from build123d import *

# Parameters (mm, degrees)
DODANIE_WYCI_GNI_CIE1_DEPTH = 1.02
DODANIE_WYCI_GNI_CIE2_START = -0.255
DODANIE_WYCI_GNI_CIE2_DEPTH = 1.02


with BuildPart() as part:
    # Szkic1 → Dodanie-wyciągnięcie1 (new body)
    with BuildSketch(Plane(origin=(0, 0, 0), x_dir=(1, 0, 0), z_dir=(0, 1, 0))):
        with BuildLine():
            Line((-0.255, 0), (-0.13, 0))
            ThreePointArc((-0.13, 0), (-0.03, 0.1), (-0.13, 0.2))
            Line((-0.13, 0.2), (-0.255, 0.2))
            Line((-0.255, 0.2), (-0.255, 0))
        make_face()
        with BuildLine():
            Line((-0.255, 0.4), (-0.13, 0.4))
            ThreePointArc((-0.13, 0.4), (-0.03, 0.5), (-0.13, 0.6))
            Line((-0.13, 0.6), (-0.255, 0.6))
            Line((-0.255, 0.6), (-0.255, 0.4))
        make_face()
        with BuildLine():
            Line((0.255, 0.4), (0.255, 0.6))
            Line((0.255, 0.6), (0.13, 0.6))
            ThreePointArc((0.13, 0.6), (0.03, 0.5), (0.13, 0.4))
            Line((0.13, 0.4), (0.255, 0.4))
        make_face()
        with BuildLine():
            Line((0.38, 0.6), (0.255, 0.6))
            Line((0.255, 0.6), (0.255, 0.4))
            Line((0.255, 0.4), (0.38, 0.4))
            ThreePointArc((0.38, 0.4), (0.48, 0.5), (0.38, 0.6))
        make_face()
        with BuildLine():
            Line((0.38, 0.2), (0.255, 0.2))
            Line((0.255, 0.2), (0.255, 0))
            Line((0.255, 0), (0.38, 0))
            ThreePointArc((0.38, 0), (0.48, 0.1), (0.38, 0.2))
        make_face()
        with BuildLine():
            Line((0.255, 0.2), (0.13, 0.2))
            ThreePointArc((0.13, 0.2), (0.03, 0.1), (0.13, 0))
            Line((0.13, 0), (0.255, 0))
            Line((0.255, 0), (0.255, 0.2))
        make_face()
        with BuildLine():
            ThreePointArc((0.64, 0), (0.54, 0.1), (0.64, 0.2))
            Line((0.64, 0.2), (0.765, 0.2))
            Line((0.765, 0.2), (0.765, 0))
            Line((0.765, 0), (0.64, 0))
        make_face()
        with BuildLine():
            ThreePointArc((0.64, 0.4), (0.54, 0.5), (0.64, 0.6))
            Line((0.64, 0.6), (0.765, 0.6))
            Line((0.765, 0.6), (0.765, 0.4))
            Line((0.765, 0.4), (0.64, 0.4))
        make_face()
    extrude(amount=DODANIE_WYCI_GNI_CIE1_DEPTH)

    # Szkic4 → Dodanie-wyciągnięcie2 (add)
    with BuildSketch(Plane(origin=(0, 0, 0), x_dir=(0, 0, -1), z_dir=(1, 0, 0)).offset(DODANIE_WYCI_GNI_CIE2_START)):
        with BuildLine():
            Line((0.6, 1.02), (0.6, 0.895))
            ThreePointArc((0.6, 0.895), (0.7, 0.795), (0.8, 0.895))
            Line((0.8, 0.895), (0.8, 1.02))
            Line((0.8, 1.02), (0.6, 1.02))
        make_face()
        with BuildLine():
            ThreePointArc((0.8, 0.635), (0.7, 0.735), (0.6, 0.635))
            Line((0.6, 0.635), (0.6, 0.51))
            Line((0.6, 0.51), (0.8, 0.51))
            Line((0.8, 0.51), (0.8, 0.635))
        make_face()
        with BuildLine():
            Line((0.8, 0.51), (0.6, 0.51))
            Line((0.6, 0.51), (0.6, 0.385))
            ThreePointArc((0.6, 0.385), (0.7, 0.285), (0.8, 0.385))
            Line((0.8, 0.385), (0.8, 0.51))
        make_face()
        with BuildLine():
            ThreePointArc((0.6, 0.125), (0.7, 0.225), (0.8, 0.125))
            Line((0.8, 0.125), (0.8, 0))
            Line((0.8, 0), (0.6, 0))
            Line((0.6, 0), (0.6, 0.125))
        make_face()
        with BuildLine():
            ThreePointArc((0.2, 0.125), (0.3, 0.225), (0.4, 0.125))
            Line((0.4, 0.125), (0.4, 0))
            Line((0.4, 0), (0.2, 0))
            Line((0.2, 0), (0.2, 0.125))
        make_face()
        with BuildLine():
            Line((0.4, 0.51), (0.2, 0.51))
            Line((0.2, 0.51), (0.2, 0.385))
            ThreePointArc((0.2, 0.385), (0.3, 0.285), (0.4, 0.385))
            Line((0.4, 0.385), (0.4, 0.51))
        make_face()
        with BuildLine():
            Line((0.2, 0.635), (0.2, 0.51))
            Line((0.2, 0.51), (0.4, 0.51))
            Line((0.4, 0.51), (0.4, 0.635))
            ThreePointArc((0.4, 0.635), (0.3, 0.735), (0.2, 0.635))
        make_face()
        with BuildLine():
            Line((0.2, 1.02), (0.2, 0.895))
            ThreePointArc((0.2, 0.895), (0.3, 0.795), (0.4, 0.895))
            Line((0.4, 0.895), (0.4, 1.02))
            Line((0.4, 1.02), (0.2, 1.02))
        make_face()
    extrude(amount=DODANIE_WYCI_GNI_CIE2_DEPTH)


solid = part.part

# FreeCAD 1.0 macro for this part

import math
import FreeCAD as App
import Part
import Sketcher

V = App.Vector

doc = App.newDocument("Part")
body = doc.addObject("PartDesign::Body", "Body")
body.AllowCompound = True

sketch1 = body.newObject("Sketcher::SketchObject", "Sketch")
sketch1.AttachmentSupport = (doc.getObject("XZ_Plane"), [""])
sketch1.MapMode = "FlatFace"
sketch1.addGeometry([
    Part.LineSegment(V(-0.26, 0, 0), V(-0.13, 0, 0)),
    Part.ArcOfCircle(Part.Circle(V(-0.13, -0.1, 0), V(0, 0, 1), 0.1), math.radians(-90), math.radians(90)),
    Part.LineSegment(V(-0.13, -0.2, 0), V(-0.26, -0.2, 0)),
    Part.LineSegment(V(-0.26, -0.2, 0), V(-0.26, 0, 0)),
    Part.LineSegment(V(-0.26, -0.4, 0), V(-0.13, -0.4, 0)),
    Part.ArcOfCircle(Part.Circle(V(-0.13, -0.5, 0), V(0, 0, 1), 0.1), math.radians(-90), math.radians(90)),
    Part.LineSegment(V(-0.13, -0.6, 0), V(-0.26, -0.6, 0)),
    Part.LineSegment(V(-0.26, -0.6, 0), V(-0.26, -0.4, 0)),
    Part.ArcOfCircle(Part.Circle(V(0.13, -0.5, 0), V(0, 0, 1), 0.1), math.radians(90), math.radians(270)),
    Part.LineSegment(V(0.13, -0.4, 0), V(0.38, -0.4, 0)),
    Part.ArcOfCircle(Part.Circle(V(0.38, -0.5, 0), V(0, 0, 1), 0.1), math.radians(-90), math.radians(90)),
    Part.LineSegment(V(0.38, -0.6, 0), V(0.13, -0.6, 0)),
    Part.LineSegment(V(0.38, -0.2, 0), V(0.13, -0.2, 0)),
    Part.ArcOfCircle(Part.Circle(V(0.13, -0.1, 0), V(0, 0, 1), 0.1), math.radians(90), math.radians(270)),
    Part.LineSegment(V(0.13, 0, 0), V(0.38, 0, 0)),
    Part.ArcOfCircle(Part.Circle(V(0.38, -0.1, 0), V(0, 0, 1), 0.1), math.radians(-90), math.radians(90)),
    Part.ArcOfCircle(Part.Circle(V(0.64, -0.1, 0), V(0, 0, 1), 0.1), math.radians(90), math.radians(270)),
    Part.LineSegment(V(0.64, 0, 0), V(0.77, 0, 0)),
    Part.LineSegment(V(0.77, 0, 0), V(0.77, -0.2, 0)),
    Part.LineSegment(V(0.77, -0.2, 0), V(0.64, -0.2, 0)),
    Part.ArcOfCircle(Part.Circle(V(0.64, -0.5, 0), V(0, 0, 1), 0.1), math.radians(90), math.radians(270)),
    Part.LineSegment(V(0.64, -0.4, 0), V(0.77, -0.4, 0)),
    Part.LineSegment(V(0.77, -0.4, 0), V(0.77, -0.6, 0)),
    Part.LineSegment(V(0.77, -0.6, 0), V(0.64, -0.6, 0)),
], False)
sketch1.addConstraint([
    Sketcher.Constraint("Tangent", 0, 2, 1, 2),
    Sketcher.Constraint("Tangent", 1, 1, 2, 1),
    Sketcher.Constraint("Coincident", 2, 2, 3, 1),
    Sketcher.Constraint("Coincident", 3, 2, 0, 1),
    Sketcher.Constraint("Tangent", 4, 2, 5, 2),
    Sketcher.Constraint("Tangent", 5, 1, 6, 1),
    Sketcher.Constraint("Coincident", 6, 2, 7, 1),
    Sketcher.Constraint("Coincident", 7, 2, 4, 1),
    Sketcher.Constraint("Tangent", 8, 1, 9, 1),
    Sketcher.Constraint("Tangent", 9, 2, 10, 2),
    Sketcher.Constraint("Tangent", 10, 1, 11, 1),
    Sketcher.Constraint("Tangent", 11, 2, 8, 2),
    Sketcher.Constraint("Tangent", 12, 2, 13, 2),
    Sketcher.Constraint("Tangent", 13, 1, 14, 1),
    Sketcher.Constraint("Tangent", 14, 2, 15, 2),
    Sketcher.Constraint("Tangent", 15, 1, 12, 1),
    Sketcher.Constraint("Tangent", 16, 1, 17, 1),
    Sketcher.Constraint("Coincident", 17, 2, 18, 1),
    Sketcher.Constraint("Coincident", 18, 2, 19, 1),
    Sketcher.Constraint("Tangent", 19, 2, 16, 2),
    Sketcher.Constraint("Tangent", 20, 1, 21, 1),
    Sketcher.Constraint("Coincident", 21, 2, 22, 1),
    Sketcher.Constraint("Coincident", 22, 2, 23, 1),
    Sketcher.Constraint("Tangent", 23, 2, 20, 2),
    Sketcher.Constraint("Horizontal", 0),
    Sketcher.Constraint("Horizontal", 2),
    Sketcher.Constraint("Vertical", 3),
    Sketcher.Constraint("Horizontal", 4),
    Sketcher.Constraint("Horizontal", 6),
    Sketcher.Constraint("Vertical", 7),
    Sketcher.Constraint("Horizontal", 9),
    Sketcher.Constraint("Horizontal", 11),
    Sketcher.Constraint("Horizontal", 12),
    Sketcher.Constraint("Horizontal", 14),
    Sketcher.Constraint("Horizontal", 17),
    Sketcher.Constraint("Vertical", 18),
    Sketcher.Constraint("Horizontal", 19),
    Sketcher.Constraint("Horizontal", 21),
    Sketcher.Constraint("Vertical", 22),
    Sketcher.Constraint("Horizontal", 23),
    Sketcher.Constraint("Equal", 1, 5),
    Sketcher.Constraint("Equal", 5, 8),
    Sketcher.Constraint("Equal", 10, 13),
    Sketcher.Constraint("Equal", 15, 16),
    Sketcher.Constraint("Equal", 16, 20),
    Sketcher.Constraint("Symmetric", 0, 2, 13, 1, -1, 1),
    Sketcher.Constraint("Symmetric", 5, 3, 8, 3, -2),
    Sketcher.Constraint("PointOnObject", 0, 2, -1),
    Sketcher.Constraint("PointOnObject", 16, 1, -1),
    Sketcher.Constraint("Horizontal", 10, 3, 20, 3),
    Sketcher.Constraint("Vertical", 1, 3, 5, 3),
    Sketcher.Constraint("Vertical", 10, 3, 15, 3),
    Sketcher.Constraint("Vertical", 16, 3, 20, 3),
    Sketcher.Constraint("Vertical", 3, 2, 6, 2),
    Sketcher.Constraint("Vertical", 18, 2, 21, 2),
    Sketcher.Constraint("Equal", 6, 17),
    Sketcher.Constraint("Radius", 1, 0.1),
    Sketcher.Constraint("DistanceX", 9, 1, 9, 2, 0.25),
    Sketcher.Constraint("DistanceY", 5, 3, -1, 1, 0.5),
    Sketcher.Constraint("DistanceX", 0, 1, 0, 2, 0.125),
    Sketcher.Constraint("DistanceX", 1, 3, -1, 1, 0.13),
    Sketcher.Constraint("DistanceX", -1, 1, 16, 3, 0.64),
])
pad1 = body.newObject("PartDesign::Pad", "Pad")
pad1.Profile = sketch1
pad1.Length = 1.02
pad1.Reversed = True

sketch2 = body.newObject("Sketcher::SketchObject", "Sketch001")
sketch2.AttachmentSupport = (doc.getObject("YZ_Plane"), [""])
sketch2.MapMode = "FlatFace"
sketch2.AttachmentOffset = App.Placement(V(0, 0, -0.255), App.Rotation())
sketch2.addGeometry([
    Part.LineSegment(V(1.02, -0.6, 0), V(0.9, -0.6, 0)),
    Part.ArcOfCircle(Part.Circle(V(0.9, -0.7, 0), V(0, 0, 1), 0.1), math.radians(90), math.radians(270)),
    Part.LineSegment(V(0.9, -0.8, 0), V(1.02, -0.8, 0)),
    Part.LineSegment(V(1.02, -0.8, 0), V(1.02, -0.6, 0)),
    Part.ArcOfCircle(Part.Circle(V(0.64, -0.7, 0), V(0, 0, 1), 0.1), math.radians(-90), math.radians(90)),
    Part.LineSegment(V(0.64, -0.6, 0), V(0.39, -0.6, 0)),
    Part.ArcOfCircle(Part.Circle(V(0.39, -0.7, 0), V(0, 0, 1), 0.1), math.radians(90), math.radians(270)),
    Part.LineSegment(V(0.39, -0.8, 0), V(0.64, -0.8, 0)),
    Part.ArcOfCircle(Part.Circle(V(0.12, -0.7, 0), V(0, 0, 1), 0.1), math.radians(-90), math.radians(90)),
    Part.LineSegment(V(0.12, -0.6, 0), V(0, -0.6, 0)),
    Part.LineSegment(V(0, -0.6, 0), V(0, -0.8, 0)),
    Part.LineSegment(V(0, -0.8, 0), V(0.12, -0.8, 0)),
    Part.ArcOfCircle(Part.Circle(V(0.12, -0.3, 0), V(0, 0, 1), 0.1), math.radians(-90), math.radians(90)),
    Part.LineSegment(V(0.12, -0.2, 0), V(0, -0.2, 0)),
    Part.LineSegment(V(0, -0.2, 0), V(0, -0.4, 0)),
    Part.LineSegment(V(0, -0.4, 0), V(0.12, -0.4, 0)),
    Part.ArcOfCircle(Part.Circle(V(0.39, -0.3, 0), V(0, 0, 1), 0.1), math.radians(90), math.radians(270)),
    Part.LineSegment(V(0.39, -0.4, 0), V(0.64, -0.4, 0)),
    Part.ArcOfCircle(Part.Circle(V(0.64, -0.3, 0), V(0, 0, 1), 0.1), math.radians(-90), math.radians(90)),
    Part.LineSegment(V(0.64, -0.2, 0), V(0.39, -0.2, 0)),
    Part.LineSegment(V(1.02, -0.2, 0), V(0.9, -0.2, 0)),
    Part.ArcOfCircle(Part.Circle(V(0.9, -0.3, 0), V(0, 0, 1), 0.1), math.radians(90), math.radians(270)),
    Part.LineSegment(V(0.9, -0.4, 0), V(1.02, -0.4, 0)),
    Part.LineSegment(V(1.02, -0.4, 0), V(1.02, -0.2, 0)),
], False)
sketch2.addConstraint([
    Sketcher.Constraint("Tangent", 0, 2, 1, 1),
    Sketcher.Constraint("Tangent", 1, 2, 2, 1),
    Sketcher.Constraint("Coincident", 2, 2, 3, 1),
    Sketcher.Constraint("Coincident", 3, 2, 0, 1),
    Sketcher.Constraint("Tangent", 4, 2, 5, 1),
    Sketcher.Constraint("Tangent", 5, 2, 6, 1),
    Sketcher.Constraint("Tangent", 6, 2, 7, 1),
    Sketcher.Constraint("Tangent", 7, 2, 4, 1),
    Sketcher.Constraint("Tangent", 8, 2, 9, 1),
    Sketcher.Constraint("Coincident", 9, 2, 10, 1),
    Sketcher.Constraint("Coincident", 10, 2, 11, 1),
    Sketcher.Constraint("Tangent", 11, 2, 8, 1),
    Sketcher.Constraint("Tangent", 12, 2, 13, 1),
    Sketcher.Constraint("Coincident", 13, 2, 14, 1),
    Sketcher.Constraint("Coincident", 14, 2, 15, 1),
    Sketcher.Constraint("Tangent", 15, 2, 12, 1),
    Sketcher.Constraint("Tangent", 16, 2, 17, 1),
    Sketcher.Constraint("Tangent", 17, 2, 18, 1),
    Sketcher.Constraint("Tangent", 18, 2, 19, 1),
    Sketcher.Constraint("Tangent", 19, 2, 16, 1),
    Sketcher.Constraint("Tangent", 20, 2, 21, 1),
    Sketcher.Constraint("Tangent", 21, 2, 22, 1),
    Sketcher.Constraint("Coincident", 22, 2, 23, 1),
    Sketcher.Constraint("Coincident", 23, 2, 20, 1),
    Sketcher.Constraint("Horizontal", 0),
    Sketcher.Constraint("Horizontal", 2),
    Sketcher.Constraint("Vertical", 3),
    Sketcher.Constraint("Horizontal", 5),
    Sketcher.Constraint("Horizontal", 7),
    Sketcher.Constraint("Horizontal", 9),
    Sketcher.Constraint("Vertical", 10),
    Sketcher.Constraint("Horizontal", 11),
    Sketcher.Constraint("Horizontal", 13),
    Sketcher.Constraint("Vertical", 14),
    Sketcher.Constraint("Horizontal", 15),
    Sketcher.Constraint("Horizontal", 17),
    Sketcher.Constraint("Horizontal", 19),
    Sketcher.Constraint("Horizontal", 20),
    Sketcher.Constraint("Horizontal", 22),
    Sketcher.Constraint("Vertical", 23),
    Sketcher.Constraint("Equal", 1, 4),
    Sketcher.Constraint("Equal", 6, 8),
    Sketcher.Constraint("Equal", 8, 12),
    Sketcher.Constraint("Equal", 12, 16),
    Sketcher.Constraint("Equal", 18, 21),
    Sketcher.Constraint("PointOnObject", 9, 2, -2),
    Sketcher.Constraint("PointOnObject", 13, 2, -2),
    Sketcher.Constraint("Horizontal", 1, 3, 4, 3),
    Sketcher.Constraint("Horizontal", 6, 3, 8, 3),
    Sketcher.Constraint("Horizontal", 12, 3, 16, 3),
    Sketcher.Constraint("Horizontal", 18, 3, 21, 3),
    Sketcher.Constraint("Vertical", 8, 3, 12, 3),
    Sketcher.Constraint("Vertical", 6, 3, 16, 3),
    Sketcher.Constraint("Vertical", 4, 3, 18, 3),
    Sketcher.Constraint("Vertical", 1, 3, 21, 3),
    Sketcher.Constraint("Vertical", 3, 2, 22, 2),
    Sketcher.Constraint("Equal", 2, 9),
    Sketcher.Constraint("Radius", 1, 0.1),
    Sketcher.Constraint("DistanceX", 5, 2, 5, 1, 0.25),
    Sketcher.Constraint("DistanceY", 1, 3, -1, 1, 0.7),
    Sketcher.Constraint("DistanceY", 12, 3, -1, 1, 0.3),
    Sketcher.Constraint("DistanceX", 0, 2, 0, 1, 0.125),
    Sketcher.Constraint("DistanceX", -1, 1, 2, 2, 1.02),
    Sketcher.Constraint("DistanceX", 4, 3, 1, 3, 0.26),
])
pad2 = body.newObject("PartDesign::Pad", "Pad001")
pad2.Profile = sketch2
pad2.Length = 1.02

doc.recompute()
